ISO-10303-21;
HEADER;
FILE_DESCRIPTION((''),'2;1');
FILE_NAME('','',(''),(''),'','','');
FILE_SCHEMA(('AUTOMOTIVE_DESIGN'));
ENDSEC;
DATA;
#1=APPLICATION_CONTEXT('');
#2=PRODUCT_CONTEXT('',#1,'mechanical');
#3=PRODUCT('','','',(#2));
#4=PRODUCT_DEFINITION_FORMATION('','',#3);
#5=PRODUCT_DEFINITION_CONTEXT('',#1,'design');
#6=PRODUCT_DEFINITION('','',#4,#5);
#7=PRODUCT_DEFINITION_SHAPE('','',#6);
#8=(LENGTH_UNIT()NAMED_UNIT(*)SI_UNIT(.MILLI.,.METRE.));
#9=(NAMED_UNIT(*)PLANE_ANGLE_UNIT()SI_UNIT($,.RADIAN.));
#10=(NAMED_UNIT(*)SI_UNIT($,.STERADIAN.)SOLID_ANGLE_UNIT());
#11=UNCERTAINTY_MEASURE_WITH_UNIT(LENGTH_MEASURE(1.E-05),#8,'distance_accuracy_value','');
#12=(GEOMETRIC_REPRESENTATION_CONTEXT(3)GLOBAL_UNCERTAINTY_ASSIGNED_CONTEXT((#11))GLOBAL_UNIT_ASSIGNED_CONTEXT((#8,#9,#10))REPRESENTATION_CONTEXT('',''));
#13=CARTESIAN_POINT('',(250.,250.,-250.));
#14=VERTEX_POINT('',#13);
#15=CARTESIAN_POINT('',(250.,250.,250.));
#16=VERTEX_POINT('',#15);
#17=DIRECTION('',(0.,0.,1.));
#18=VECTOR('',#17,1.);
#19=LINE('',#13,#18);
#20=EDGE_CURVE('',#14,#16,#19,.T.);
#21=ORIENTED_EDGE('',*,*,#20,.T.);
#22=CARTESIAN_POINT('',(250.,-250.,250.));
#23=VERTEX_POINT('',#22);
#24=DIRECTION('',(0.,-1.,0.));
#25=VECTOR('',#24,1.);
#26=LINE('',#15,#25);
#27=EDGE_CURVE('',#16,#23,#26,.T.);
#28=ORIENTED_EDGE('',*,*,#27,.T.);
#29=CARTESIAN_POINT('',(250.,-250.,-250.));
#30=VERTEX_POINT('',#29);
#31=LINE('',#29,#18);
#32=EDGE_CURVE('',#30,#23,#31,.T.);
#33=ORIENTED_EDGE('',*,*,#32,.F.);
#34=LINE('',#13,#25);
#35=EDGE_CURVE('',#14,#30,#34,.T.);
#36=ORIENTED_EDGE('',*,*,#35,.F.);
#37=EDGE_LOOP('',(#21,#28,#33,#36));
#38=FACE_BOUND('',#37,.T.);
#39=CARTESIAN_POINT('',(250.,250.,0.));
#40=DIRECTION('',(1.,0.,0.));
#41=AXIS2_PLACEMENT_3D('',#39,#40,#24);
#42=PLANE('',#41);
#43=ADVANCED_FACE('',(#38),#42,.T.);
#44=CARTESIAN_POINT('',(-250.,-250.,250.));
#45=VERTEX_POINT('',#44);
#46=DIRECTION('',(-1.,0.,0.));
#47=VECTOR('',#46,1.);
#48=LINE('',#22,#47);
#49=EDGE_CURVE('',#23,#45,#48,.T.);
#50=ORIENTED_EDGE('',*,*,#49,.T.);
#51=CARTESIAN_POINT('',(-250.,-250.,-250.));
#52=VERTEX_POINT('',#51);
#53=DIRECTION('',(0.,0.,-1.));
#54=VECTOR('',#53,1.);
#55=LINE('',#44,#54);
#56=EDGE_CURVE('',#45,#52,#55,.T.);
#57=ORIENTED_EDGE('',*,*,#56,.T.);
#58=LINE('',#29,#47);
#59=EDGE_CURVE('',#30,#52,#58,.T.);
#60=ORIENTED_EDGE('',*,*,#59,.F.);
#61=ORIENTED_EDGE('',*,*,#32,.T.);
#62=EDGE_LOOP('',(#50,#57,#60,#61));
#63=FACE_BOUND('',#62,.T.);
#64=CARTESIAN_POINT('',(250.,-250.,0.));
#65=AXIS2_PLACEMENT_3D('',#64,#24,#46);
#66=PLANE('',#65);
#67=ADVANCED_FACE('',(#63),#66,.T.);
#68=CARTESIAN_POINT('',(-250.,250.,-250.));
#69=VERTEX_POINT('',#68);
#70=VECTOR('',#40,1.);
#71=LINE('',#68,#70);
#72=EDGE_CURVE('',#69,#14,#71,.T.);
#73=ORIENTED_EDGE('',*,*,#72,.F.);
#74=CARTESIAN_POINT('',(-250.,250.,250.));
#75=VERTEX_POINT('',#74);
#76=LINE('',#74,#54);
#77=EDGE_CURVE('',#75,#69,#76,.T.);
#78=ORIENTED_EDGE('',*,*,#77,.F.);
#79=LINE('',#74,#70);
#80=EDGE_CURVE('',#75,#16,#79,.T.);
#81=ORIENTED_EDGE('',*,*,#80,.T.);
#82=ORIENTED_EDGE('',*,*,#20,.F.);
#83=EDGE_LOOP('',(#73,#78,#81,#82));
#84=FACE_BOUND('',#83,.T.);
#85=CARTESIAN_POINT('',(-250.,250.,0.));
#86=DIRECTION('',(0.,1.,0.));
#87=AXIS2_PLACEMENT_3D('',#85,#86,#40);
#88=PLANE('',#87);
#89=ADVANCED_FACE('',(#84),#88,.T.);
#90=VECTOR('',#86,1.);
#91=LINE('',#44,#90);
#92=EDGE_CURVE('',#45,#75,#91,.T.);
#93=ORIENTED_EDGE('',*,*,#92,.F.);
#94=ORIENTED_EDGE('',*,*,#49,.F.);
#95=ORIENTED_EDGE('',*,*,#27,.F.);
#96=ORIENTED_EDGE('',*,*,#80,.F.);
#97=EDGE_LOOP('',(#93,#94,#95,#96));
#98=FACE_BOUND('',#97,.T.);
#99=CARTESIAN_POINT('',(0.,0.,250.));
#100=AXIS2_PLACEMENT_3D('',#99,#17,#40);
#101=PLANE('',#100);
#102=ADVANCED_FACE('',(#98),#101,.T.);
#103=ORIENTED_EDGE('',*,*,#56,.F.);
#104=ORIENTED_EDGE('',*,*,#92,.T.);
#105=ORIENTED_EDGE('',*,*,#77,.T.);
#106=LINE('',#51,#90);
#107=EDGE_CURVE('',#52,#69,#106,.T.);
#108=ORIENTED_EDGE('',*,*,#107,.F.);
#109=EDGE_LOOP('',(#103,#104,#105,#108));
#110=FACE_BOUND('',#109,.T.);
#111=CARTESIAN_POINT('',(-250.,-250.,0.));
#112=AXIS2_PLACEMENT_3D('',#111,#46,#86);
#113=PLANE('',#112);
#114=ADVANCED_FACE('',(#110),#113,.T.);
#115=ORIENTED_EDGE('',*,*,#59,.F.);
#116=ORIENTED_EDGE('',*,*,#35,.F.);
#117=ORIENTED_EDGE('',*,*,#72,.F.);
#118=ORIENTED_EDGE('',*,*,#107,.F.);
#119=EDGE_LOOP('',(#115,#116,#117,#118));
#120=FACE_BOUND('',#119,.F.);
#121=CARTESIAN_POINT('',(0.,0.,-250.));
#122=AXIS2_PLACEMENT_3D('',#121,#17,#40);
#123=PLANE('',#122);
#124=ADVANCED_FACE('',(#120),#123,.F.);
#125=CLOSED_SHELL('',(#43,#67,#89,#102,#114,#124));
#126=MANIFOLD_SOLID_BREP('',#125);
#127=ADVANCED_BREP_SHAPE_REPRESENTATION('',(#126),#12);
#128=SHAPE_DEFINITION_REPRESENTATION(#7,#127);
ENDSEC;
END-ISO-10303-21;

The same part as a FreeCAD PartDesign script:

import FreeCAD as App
import Part
import Sketcher
from FreeCAD import Vector


def add_polygon(sketch, points):
    """Adds a closed chain of lines whose ends are joined by coincident constraints."""
    first, n = sketch.GeometryCount, len(points)
    for a, b in zip(points, points[1:] + points[:1]):
        sketch.addGeometry(Part.LineSegment(App.Vector(*a, 0), App.Vector(*b, 0)), False)
    for i in range(n):
        sketch.addConstraint(Sketcher.Constraint("Coincident", first + i, 2, first + (i + 1) % n, 1))

doc = App.newDocument("Part")
params = doc.addObject("Spreadsheet::Sheet", "Params")
for row, (alias, value) in enumerate([
    ("sketch1_width", "500 mm"),
    ("pad1_length", "500 mm"),
], start=1):
    params.set(f"A{row}", alias)
    params.set(f"B{row}", "=" + value)
    params.setAlias(f"B{row}", alias)

body = doc.addObject("PartDesign::Body", "Body")

# Sketch on XY plane
sketch1 = body.newObject("Sketcher::SketchObject", "Sketch")
sketch1.AttachmentSupport = (doc.getObject("XY_Plane"), [""])
sketch1.MapMode = "FlatFace"
add_polygon(sketch1, [(-250, -250), (250, -250), (250, 250), (-250, 250)])  # lines 0-3
sketch1.addConstraint([
    Sketcher.Constraint("Horizontal", 0),
    Sketcher.Constraint("Vertical", 1),
    Sketcher.Constraint("Horizontal", 2),
    Sketcher.Constraint("Vertical", 3),
    Sketcher.Constraint("Symmetric", 0, 2, 2, 2, -1, 1),
    Sketcher.Constraint("Equal", 2, 1),
    Sketcher.Constraint("DistanceX", 0, 1, 0, 2, 500.0),
])
sketch1.setExpression("Constraints[10]", "Params.sketch1_width")
pad1 = body.newObject("PartDesign::Pad", "Pad")
pad1.Profile = sketch1
pad1.setExpression("Length", "Params.pad1_length")
pad1.Midplane = True

doc.recompute()
